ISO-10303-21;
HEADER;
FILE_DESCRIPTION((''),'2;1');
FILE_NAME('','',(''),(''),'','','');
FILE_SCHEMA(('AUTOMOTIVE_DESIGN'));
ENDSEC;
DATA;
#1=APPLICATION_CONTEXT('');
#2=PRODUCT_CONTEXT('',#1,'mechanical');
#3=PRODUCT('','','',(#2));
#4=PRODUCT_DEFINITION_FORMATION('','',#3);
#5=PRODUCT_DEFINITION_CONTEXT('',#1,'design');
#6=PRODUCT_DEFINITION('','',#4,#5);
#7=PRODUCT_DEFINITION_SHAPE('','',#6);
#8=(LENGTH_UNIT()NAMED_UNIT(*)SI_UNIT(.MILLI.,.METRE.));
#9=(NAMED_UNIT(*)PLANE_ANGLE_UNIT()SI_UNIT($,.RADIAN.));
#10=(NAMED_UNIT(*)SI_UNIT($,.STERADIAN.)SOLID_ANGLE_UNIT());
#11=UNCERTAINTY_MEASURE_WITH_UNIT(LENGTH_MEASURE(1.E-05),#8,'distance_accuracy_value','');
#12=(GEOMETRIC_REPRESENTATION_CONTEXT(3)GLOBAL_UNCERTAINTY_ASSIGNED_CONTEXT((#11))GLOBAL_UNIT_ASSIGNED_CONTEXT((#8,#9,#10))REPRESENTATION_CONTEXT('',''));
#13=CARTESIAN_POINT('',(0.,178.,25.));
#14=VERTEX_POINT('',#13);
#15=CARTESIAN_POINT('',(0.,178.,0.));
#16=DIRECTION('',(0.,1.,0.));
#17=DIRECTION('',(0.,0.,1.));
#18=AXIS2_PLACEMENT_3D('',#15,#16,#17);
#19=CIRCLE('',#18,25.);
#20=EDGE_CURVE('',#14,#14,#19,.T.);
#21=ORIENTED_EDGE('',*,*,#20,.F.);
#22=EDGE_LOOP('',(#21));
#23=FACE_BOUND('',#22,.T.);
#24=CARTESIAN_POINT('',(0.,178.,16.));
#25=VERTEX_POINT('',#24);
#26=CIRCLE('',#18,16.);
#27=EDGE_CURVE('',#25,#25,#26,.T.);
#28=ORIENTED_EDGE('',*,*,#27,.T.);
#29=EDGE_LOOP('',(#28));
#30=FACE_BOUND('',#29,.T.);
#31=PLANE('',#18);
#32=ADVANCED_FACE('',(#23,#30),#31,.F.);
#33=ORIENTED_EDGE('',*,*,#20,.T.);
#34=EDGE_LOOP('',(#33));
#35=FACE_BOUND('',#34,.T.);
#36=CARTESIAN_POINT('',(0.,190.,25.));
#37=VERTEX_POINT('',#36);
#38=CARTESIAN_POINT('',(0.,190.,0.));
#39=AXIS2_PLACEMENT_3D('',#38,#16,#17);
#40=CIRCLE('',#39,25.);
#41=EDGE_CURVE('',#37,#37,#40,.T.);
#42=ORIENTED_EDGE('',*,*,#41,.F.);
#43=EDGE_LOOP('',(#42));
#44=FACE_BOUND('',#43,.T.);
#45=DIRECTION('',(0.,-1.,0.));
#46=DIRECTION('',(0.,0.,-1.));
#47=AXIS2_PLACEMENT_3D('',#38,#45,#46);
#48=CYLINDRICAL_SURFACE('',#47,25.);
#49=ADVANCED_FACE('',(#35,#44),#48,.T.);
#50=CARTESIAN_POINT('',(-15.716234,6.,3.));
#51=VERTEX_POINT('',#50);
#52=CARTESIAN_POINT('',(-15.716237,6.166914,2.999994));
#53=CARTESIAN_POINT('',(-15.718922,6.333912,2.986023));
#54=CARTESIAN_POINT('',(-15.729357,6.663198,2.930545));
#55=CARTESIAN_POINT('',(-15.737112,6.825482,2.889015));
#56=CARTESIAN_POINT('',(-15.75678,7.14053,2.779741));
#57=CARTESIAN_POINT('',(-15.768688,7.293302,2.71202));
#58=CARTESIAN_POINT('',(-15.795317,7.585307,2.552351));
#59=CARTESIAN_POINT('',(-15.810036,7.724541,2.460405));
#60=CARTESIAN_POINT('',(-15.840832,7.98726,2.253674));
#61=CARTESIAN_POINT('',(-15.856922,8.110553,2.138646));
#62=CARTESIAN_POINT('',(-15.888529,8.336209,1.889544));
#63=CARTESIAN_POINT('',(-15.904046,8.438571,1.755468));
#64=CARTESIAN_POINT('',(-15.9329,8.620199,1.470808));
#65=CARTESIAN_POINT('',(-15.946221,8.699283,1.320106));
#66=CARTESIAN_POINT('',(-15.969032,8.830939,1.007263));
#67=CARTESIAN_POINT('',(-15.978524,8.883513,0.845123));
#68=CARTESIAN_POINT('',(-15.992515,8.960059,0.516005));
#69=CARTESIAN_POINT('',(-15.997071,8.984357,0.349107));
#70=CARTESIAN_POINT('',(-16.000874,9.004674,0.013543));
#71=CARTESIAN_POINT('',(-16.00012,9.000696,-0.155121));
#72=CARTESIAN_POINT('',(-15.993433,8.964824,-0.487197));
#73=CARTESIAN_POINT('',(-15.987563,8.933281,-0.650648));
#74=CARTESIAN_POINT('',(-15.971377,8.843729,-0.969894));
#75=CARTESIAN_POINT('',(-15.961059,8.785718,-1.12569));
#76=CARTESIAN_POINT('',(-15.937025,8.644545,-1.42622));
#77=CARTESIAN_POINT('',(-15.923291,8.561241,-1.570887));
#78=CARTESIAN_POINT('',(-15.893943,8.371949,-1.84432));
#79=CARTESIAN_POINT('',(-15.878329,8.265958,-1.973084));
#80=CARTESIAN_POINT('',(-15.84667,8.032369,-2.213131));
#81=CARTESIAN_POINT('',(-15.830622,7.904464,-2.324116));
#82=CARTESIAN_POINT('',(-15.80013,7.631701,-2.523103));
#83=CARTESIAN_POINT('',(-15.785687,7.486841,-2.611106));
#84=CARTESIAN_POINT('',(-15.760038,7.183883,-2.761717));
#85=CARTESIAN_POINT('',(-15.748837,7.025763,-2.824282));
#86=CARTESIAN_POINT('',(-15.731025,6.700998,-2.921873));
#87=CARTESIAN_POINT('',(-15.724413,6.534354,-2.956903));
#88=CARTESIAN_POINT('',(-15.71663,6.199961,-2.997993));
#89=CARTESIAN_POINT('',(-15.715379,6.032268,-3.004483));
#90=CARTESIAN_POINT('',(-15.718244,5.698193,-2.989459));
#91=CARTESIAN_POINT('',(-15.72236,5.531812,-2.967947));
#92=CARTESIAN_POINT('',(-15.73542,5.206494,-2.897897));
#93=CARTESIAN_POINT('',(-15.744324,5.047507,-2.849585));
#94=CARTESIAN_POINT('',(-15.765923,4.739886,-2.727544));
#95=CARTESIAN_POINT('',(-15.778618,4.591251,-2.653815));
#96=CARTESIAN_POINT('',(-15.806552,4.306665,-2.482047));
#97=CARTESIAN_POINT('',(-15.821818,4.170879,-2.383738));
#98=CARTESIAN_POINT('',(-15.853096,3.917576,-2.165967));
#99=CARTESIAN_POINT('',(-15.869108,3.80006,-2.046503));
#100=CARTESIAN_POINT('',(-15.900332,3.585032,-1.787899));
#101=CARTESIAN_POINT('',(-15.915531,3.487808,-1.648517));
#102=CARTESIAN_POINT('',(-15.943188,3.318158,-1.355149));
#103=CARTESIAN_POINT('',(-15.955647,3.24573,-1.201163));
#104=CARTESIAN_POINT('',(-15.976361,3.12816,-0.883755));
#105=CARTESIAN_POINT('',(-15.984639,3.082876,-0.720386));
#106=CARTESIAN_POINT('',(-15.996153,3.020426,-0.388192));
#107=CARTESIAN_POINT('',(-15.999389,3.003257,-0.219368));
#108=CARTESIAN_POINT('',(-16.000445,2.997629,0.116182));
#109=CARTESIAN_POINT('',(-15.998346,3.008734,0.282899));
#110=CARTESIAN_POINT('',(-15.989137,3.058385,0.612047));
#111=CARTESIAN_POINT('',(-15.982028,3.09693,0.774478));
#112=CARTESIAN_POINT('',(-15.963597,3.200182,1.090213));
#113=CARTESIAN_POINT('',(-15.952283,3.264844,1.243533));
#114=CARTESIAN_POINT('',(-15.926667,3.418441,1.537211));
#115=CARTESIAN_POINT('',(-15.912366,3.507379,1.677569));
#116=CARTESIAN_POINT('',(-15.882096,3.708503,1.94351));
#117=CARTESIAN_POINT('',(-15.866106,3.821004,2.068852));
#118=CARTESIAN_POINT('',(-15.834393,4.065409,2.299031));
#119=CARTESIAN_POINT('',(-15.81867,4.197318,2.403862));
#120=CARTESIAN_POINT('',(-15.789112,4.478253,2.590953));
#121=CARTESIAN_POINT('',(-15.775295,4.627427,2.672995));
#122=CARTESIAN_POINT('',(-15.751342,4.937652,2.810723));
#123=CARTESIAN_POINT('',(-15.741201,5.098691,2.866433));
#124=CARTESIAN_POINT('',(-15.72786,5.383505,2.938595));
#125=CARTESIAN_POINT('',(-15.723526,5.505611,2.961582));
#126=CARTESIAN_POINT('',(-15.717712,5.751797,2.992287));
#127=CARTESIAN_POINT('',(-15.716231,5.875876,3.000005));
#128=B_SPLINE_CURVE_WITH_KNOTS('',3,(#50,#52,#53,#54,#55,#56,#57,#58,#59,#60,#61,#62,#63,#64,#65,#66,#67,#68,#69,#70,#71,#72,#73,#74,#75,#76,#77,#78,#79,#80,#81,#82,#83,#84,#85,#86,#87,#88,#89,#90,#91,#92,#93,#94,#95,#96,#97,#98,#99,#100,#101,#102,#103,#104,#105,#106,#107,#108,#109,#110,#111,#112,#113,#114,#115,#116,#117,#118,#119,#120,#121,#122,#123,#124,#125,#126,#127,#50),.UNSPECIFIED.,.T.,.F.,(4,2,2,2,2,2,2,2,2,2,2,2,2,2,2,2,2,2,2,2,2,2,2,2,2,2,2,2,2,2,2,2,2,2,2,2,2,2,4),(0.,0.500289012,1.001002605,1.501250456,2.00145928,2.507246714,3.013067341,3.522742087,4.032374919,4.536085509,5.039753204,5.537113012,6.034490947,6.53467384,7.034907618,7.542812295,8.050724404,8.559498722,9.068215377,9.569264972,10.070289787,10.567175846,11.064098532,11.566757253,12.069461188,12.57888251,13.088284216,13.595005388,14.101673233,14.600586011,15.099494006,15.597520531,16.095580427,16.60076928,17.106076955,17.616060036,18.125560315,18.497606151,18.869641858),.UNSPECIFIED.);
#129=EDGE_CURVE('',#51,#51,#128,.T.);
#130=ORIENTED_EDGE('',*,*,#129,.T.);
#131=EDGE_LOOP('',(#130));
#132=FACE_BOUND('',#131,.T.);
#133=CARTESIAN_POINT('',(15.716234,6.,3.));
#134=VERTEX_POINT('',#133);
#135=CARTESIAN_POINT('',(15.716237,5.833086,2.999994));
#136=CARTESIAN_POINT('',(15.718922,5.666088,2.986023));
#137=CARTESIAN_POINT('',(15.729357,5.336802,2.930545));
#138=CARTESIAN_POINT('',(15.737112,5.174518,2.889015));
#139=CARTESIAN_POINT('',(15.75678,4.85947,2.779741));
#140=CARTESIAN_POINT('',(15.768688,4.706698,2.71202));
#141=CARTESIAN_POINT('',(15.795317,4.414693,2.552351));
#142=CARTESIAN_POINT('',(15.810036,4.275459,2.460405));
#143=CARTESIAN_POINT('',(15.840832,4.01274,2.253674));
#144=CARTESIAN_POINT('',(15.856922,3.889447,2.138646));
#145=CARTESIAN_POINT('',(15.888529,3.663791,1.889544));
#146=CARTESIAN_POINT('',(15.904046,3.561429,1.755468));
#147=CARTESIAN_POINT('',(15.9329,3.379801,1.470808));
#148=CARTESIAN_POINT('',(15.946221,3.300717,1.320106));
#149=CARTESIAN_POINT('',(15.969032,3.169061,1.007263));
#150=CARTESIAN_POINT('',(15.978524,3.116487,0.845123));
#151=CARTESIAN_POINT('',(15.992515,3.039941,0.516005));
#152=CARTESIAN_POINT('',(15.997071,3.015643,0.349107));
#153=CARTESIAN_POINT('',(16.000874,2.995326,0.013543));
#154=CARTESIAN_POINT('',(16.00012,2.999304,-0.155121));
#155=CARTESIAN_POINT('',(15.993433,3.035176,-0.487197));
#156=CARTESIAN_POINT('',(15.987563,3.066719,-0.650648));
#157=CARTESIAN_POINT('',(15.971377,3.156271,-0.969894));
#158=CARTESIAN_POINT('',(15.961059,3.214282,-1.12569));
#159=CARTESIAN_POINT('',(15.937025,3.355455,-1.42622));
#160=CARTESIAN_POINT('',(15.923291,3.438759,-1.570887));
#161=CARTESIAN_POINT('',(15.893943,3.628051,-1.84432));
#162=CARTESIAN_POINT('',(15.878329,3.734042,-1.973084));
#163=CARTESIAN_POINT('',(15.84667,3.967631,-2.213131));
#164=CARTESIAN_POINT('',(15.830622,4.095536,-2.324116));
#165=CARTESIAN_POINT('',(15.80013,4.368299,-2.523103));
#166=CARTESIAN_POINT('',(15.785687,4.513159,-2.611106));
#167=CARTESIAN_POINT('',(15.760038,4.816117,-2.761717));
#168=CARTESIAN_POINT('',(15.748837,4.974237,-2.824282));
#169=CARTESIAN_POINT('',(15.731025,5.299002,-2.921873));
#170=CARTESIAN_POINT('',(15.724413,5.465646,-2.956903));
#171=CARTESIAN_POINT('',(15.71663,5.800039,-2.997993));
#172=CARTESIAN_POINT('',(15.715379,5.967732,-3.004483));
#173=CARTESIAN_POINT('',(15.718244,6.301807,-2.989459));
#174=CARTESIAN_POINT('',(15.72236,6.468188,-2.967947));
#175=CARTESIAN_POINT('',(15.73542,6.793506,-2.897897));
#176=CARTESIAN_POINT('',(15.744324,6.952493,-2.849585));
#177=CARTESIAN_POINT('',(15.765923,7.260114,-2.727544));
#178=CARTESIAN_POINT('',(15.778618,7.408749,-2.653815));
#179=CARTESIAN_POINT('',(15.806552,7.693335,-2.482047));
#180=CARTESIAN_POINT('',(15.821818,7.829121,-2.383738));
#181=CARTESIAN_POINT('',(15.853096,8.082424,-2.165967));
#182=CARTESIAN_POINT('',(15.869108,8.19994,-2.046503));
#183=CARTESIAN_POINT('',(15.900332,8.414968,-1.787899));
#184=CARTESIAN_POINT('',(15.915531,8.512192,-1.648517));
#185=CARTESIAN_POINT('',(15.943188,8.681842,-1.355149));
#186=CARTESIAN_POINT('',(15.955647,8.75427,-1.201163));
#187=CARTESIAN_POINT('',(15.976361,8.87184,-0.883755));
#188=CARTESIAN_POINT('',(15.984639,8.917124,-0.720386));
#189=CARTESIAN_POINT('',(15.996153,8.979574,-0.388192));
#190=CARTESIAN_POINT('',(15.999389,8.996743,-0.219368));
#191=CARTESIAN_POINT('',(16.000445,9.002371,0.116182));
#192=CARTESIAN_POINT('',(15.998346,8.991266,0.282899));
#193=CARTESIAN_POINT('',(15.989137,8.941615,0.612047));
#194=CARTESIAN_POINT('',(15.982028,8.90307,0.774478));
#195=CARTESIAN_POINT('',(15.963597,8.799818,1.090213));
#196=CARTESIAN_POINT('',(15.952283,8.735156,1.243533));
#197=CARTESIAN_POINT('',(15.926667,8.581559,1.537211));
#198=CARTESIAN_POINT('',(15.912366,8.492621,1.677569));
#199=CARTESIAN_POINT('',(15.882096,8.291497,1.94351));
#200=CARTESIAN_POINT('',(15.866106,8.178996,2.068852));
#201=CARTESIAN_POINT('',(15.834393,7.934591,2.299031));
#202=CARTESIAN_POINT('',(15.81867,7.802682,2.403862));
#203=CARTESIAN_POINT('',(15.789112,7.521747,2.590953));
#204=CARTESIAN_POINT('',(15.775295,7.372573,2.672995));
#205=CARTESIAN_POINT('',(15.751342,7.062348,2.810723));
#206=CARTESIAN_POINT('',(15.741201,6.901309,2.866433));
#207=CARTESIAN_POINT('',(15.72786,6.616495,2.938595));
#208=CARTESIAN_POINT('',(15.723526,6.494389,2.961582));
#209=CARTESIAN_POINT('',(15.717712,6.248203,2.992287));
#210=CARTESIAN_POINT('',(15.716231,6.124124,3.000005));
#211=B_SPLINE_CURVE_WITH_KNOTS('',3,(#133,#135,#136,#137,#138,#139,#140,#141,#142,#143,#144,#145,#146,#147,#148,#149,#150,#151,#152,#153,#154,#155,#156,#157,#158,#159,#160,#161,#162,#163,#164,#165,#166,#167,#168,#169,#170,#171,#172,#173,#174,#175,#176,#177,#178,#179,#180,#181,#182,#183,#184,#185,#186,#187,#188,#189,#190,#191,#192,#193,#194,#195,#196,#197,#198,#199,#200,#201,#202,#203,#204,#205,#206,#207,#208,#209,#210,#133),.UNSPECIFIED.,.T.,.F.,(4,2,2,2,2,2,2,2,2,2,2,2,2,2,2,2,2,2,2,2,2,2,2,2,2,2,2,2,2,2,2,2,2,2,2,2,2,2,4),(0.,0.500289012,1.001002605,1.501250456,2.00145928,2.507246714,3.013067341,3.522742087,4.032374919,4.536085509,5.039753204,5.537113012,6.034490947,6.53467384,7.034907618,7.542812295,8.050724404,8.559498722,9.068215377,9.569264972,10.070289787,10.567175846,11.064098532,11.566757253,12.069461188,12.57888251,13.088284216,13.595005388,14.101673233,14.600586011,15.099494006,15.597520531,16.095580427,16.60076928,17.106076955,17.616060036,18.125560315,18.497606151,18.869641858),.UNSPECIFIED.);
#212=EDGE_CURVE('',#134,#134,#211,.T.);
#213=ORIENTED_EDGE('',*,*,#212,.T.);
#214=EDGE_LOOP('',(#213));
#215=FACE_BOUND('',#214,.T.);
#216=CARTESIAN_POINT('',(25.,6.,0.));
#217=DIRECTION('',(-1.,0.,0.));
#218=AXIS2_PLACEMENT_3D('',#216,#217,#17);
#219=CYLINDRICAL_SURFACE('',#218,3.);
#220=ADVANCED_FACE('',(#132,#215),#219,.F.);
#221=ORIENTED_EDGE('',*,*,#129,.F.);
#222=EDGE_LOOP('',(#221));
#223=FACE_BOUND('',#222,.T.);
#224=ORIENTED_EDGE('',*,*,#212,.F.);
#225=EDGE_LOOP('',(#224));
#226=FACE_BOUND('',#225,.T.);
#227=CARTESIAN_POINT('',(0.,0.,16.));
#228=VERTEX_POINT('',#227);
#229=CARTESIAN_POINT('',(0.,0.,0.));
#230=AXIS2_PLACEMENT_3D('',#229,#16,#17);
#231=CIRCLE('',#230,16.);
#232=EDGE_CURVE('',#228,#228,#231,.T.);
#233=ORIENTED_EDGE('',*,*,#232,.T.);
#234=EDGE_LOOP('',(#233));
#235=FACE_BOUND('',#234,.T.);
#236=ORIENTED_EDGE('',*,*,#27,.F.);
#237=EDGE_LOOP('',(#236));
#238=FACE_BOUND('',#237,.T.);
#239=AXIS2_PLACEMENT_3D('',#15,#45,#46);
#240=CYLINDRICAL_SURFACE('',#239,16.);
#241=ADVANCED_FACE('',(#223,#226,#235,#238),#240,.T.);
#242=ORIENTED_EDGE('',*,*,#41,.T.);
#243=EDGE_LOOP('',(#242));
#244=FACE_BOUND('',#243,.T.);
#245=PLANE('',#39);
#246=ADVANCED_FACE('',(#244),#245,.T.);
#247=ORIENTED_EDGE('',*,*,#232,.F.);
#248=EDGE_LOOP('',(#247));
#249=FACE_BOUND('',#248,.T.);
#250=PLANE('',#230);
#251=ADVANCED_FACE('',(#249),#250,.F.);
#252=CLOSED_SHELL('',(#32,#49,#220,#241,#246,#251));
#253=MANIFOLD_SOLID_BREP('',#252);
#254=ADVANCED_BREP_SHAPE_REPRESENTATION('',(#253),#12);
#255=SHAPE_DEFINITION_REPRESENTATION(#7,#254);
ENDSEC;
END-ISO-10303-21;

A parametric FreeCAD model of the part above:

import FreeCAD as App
import Part
import Sketcher

doc = App.newDocument("Part")
body = doc.addObject("PartDesign::Body", "Body")

# Sketch on XZ plane
sketch1 = body.newObject("Sketcher::SketchObject", "Sketch")
sketch1.AttachmentSupport = (doc.getObject("XZ_Plane"), [""])
sketch1.MapMode = "FlatFace"
sketch1.addGeometry(Part.Circle(App.Vector(0, 0, 0), App.Vector(0, 0, 1), 16), False)
sketch1.addConstraint([
    Sketcher.Constraint("Coincident", 0, 3, -1, 1),
    Sketcher.Constraint("Diameter", 0, 32.0),
])
pad1 = body.newObject("PartDesign::Pad", "Pad")
pad1.Profile = sketch1
pad1.Length = 178
pad1.Reversed = True

# Sketch on XZ plane
sketch2 = body.newObject("Sketcher::SketchObject", "Sketch001")
sketch2.AttachmentSupport = (doc.getObject("XZ_Plane"), [""])
sketch2.MapMode = "FlatFace"
sketch2.AttachmentOffset = App.Placement(App.Vector(0, 0, -178), App.Rotation())
sketch2.addGeometry(Part.Circle(App.Vector(0, 0, 0), App.Vector(0, 0, 1), 25), False)
sketch2.addConstraint([
    Sketcher.Constraint("Coincident", 0, 3, -1, 1),
    Sketcher.Constraint("Diameter", 0, 50.0),
])
pad2 = body.newObject("PartDesign::Pad", "Pad001")
pad2.Profile = sketch2
pad2.Length = 12
pad2.Reversed = True

# Sketch on YZ plane
sketch3 = body.newObject("Sketcher::SketchObject", "Sketch002")
sketch3.AttachmentSupport = (doc.getObject("YZ_Plane"), [""])
sketch3.MapMode = "FlatFace"
sketch3.addGeometry(Part.Circle(App.Vector(6, 0, 0), App.Vector(0, 0, 1), 3), False)
sketch3.addConstraint([
    Sketcher.Constraint("PointOnObject", 0, 3, -1),
    Sketcher.Constraint("Diameter", 0, 6.0),
    Sketcher.Constraint("DistanceX", -1, 1, 0, 3, 6.0),
])
pocket1 = body.newObject("PartDesign::Pocket", "Pocket")
pocket1.Profile = sketch3
pocket1.Type = "ThroughAll"
pocket1.Midplane = True

doc.recompute()
